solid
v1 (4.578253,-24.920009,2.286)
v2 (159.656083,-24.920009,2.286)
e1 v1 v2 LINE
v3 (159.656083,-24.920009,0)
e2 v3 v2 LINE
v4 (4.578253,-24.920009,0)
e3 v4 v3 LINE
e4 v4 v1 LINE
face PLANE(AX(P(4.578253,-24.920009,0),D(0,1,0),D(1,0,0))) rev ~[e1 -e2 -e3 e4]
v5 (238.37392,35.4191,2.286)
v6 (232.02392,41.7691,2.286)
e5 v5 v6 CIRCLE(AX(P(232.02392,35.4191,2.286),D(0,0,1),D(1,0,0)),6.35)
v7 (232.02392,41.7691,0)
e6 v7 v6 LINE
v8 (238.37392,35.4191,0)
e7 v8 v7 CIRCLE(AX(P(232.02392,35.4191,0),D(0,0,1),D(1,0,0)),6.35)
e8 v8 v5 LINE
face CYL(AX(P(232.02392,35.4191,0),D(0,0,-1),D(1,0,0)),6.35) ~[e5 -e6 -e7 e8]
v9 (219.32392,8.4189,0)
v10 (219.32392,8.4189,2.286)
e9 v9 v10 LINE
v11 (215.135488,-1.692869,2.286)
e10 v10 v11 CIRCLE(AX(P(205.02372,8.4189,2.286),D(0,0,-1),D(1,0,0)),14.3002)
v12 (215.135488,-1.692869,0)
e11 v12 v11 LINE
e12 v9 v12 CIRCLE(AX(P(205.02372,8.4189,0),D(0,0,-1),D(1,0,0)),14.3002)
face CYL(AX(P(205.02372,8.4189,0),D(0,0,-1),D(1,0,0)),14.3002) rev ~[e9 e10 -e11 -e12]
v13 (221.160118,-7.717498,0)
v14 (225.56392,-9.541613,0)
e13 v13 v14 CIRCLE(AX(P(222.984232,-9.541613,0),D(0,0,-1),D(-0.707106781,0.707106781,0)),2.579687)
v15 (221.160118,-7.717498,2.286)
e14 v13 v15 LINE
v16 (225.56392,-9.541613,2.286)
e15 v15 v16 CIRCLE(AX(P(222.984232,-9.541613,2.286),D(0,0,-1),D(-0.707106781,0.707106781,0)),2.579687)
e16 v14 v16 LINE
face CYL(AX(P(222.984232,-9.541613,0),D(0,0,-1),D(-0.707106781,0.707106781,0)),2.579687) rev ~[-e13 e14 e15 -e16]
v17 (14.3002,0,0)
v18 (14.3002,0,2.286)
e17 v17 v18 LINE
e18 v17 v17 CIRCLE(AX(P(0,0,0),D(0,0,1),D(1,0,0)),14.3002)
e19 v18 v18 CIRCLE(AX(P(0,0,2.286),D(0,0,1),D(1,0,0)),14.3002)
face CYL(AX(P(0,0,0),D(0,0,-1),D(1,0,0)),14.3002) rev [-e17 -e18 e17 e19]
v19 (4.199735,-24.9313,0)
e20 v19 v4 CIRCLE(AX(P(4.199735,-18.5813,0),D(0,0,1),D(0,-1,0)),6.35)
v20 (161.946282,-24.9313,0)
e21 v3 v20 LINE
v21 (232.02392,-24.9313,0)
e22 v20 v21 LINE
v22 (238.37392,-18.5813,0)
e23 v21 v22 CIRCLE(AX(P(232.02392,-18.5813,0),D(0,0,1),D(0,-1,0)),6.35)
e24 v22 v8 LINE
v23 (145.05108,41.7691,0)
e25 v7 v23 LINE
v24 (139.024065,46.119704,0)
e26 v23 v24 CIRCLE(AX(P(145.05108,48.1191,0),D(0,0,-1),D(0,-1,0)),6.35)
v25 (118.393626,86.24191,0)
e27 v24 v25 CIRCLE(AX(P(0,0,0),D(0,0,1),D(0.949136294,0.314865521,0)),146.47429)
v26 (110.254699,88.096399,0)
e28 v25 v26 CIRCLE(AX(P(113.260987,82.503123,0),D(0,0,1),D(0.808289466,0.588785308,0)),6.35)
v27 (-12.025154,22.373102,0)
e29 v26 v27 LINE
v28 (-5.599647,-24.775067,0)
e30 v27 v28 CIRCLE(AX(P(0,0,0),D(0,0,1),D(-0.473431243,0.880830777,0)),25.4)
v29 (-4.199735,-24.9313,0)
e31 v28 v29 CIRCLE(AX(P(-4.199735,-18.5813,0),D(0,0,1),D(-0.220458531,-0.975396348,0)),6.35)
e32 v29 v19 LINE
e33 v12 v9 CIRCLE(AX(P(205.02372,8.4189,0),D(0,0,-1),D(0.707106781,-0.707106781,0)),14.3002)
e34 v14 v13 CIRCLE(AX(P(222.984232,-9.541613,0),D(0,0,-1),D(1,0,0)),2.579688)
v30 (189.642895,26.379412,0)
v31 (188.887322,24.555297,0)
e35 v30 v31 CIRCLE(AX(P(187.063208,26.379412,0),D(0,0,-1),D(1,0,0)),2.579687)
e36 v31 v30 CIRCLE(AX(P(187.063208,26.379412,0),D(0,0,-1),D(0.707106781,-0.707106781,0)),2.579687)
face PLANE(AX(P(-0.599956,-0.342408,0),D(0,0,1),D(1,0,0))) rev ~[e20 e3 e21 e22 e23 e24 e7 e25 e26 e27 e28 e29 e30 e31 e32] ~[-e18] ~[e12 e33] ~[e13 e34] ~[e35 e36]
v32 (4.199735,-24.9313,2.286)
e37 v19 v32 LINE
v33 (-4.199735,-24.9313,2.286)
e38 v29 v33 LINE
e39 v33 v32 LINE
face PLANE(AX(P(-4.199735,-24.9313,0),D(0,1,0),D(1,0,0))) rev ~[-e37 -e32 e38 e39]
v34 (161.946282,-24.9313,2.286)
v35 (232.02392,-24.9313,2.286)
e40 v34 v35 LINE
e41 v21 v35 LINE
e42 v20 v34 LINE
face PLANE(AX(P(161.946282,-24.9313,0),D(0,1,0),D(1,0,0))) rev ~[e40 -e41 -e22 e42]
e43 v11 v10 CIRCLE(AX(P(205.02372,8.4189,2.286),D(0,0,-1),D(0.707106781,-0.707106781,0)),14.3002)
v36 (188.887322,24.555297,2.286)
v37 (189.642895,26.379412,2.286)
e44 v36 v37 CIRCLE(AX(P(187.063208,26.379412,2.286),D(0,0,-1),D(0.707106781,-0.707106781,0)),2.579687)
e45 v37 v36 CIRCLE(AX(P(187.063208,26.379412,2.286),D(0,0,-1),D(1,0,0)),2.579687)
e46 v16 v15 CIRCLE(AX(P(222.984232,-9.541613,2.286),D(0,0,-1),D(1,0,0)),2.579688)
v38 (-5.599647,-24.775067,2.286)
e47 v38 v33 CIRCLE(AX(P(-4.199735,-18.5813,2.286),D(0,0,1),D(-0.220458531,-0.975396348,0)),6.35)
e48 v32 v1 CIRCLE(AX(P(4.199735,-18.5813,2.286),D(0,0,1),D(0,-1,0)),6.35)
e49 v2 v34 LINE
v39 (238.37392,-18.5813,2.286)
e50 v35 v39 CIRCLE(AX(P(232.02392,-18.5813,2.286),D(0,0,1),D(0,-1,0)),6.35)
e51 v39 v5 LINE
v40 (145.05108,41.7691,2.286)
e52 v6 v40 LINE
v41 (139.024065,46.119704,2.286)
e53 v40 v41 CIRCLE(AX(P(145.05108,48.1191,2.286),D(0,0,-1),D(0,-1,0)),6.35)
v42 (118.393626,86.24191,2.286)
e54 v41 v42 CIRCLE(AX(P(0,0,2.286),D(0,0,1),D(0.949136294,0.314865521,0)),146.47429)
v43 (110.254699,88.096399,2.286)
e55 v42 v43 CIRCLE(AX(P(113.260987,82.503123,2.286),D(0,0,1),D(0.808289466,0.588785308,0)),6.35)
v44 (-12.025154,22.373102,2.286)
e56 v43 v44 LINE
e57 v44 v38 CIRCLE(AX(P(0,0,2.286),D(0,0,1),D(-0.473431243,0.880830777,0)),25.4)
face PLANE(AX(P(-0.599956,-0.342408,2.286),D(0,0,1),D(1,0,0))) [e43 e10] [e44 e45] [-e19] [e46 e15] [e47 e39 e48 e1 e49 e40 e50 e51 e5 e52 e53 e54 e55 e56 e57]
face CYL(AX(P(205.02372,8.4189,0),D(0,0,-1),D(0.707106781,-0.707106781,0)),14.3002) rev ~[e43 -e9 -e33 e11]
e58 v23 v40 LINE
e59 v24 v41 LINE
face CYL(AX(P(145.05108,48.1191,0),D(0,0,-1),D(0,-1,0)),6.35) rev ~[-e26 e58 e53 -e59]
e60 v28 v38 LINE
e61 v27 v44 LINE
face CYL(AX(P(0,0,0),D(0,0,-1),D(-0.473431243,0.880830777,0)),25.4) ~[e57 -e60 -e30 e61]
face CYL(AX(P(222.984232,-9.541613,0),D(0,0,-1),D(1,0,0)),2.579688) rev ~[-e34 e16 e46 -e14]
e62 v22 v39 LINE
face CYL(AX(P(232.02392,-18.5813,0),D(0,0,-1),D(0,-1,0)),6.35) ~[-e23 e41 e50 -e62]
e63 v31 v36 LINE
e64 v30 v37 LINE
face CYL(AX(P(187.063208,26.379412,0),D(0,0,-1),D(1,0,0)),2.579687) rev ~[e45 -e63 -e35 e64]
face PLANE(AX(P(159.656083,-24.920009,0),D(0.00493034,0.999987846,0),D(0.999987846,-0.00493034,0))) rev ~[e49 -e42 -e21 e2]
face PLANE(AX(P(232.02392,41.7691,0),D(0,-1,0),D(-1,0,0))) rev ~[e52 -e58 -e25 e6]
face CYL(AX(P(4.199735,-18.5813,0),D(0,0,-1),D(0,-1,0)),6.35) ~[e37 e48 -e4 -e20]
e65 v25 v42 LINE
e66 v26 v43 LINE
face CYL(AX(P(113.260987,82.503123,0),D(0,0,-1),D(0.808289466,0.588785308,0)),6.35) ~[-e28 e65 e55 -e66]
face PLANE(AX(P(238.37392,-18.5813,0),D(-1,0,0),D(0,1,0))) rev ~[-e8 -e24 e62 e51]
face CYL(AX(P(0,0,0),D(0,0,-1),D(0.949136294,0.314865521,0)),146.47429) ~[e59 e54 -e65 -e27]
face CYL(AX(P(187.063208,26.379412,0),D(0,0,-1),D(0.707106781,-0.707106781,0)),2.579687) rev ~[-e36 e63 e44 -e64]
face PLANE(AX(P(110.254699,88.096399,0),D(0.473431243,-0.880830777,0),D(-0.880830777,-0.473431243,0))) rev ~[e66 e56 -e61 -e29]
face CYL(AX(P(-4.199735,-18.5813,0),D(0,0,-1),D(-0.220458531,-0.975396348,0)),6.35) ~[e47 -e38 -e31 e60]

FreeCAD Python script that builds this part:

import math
import FreeCAD as App
import Part
import Sketcher
Q = App.Units.Quantity

doc = App.newDocument("Part")
body = doc.addObject("PartDesign::Body", "Body")

# Sketch on XY plane
sketch1 = body.newObject("Sketcher::SketchObject", "Sketch")
sketch1.AttachmentSupport = (doc.getObject("XY_Plane"), [""])
sketch1.MapMode = "FlatFace"
sketch1.addGeometry(Part.ArcOfCircle(Part.Circle(App.Vector(4.2, -18.58, 0), App.Vector(0, 0, 1), 6.35), math.radians(-90), math.radians(-86.58)), False)
sketch1.addGeometry(Part.LineSegment(App.Vector(4.58, -24.92, 0), App.Vector(159.66, -24.92, 0)), False)
sketch1.addGeometry(Part.LineSegment(App.Vector(159.66, -24.92, 0), App.Vector(161.95, -24.93, 0)), False)
sketch1.addGeometry(Part.LineSegment(App.Vector(161.95, -24.93, 0), App.Vector(232.02, -24.93, 0)), False)
sketch1.addGeometry(Part.ArcOfCircle(Part.Circle(App.Vector(232.02, -18.58, 0), App.Vector(0, 0, 1), 6.35), math.radians(-90), math.radians(0)), False)
sketch1.addGeometry(Part.LineSegment(App.Vector(238.37, -18.58, 0), App.Vector(238.37, 35.42, 0)), False)
sketch1.addGeometry(Part.ArcOfCircle(Part.Circle(App.Vector(232.02, 35.42, 0), App.Vector(0, 0, 1), 6.35), math.radians(0), math.radians(90)), False)
sketch1.addGeometry(Part.LineSegment(App.Vector(232.02, 41.77, 0), App.Vector(145.05, 41.77, 0)), False)
sketch1.addGeometry(Part.ArcOfCircle(Part.Circle(App.Vector(145.05, 48.12, 0), App.Vector(0, 0, 1), 6.35), math.radians(-162), math.radians(-90)), False)
sketch1.addGeometry(Part.ArcOfCircle(Part.Circle(App.Vector(0, 0, 0), App.Vector(0, 0, 1), 146.47), math.radians(18.35), math.radians(36.07)), False)
sketch1.addGeometry(Part.ArcOfCircle(Part.Circle(App.Vector(113.26, 82.5, 0), App.Vector(0, 0, 1), 6.35), math.radians(36), math.radians(118)), False)
sketch1.addGeometry(Part.LineSegment(App.Vector(110.25, 88.1, 0), App.Vector(-12.03, 22.37, 0)), False)
sketch1.addGeometry(Part.ArcOfCircle(Part.Circle(App.Vector(0, 0, 0), App.Vector(0, 0, 1), 25.4), math.radians(118), math.radians(257)), False)
sketch1.addGeometry(Part.ArcOfCircle(Part.Circle(App.Vector(-4.2, -18.58, 0), App.Vector(0, 0, 1), 6.35), math.radians(-102.74), math.radians(-90)), False)
sketch1.addGeometry(Part.LineSegment(App.Vector(-4.2, -24.93, 0), App.Vector(4.2, -24.93, 0)), False)
sketch1.addGeometry(Part.Circle(App.Vector(0, 0, 0), App.Vector(0, 0, 1), 14.3), False)
sketch1.addGeometry(Part.ArcOfCircle(Part.Circle(App.Vector(222.98, -9.54, 0), App.Vector(0, 0, 1), 2.58), math.radians(0), math.radians(135)), False)
sketch1.addGeometry(Part.ArcOfCircle(Part.Circle(App.Vector(222.98, -9.54, 0), App.Vector(0, 0, 1), 2.58), math.radians(135), math.radians(360)), False)
sketch1.addGeometry(Part.ArcOfCircle(Part.Circle(App.Vector(205.02, 8.42, 0), App.Vector(0, 0, 1), 14.3), math.radians(0), math.radians(315)), False)
sketch1.addGeometry(Part.ArcOfCircle(Part.Circle(App.Vector(205.02, 8.42, 0), App.Vector(0, 0, 1), 14.3), math.radians(-45), math.radians(0)), False)
sketch1.addGeometry(Part.ArcOfCircle(Part.Circle(App.Vector(187.06, 26.38, 0), App.Vector(0, 0, 1), 2.58), math.radians(0), math.radians(315)), False)
sketch1.addGeometry(Part.ArcOfCircle(Part.Circle(App.Vector(187.06, 26.38, 0), App.Vector(0, 0, 1), 2.58), math.radians(-45), math.radians(0)), False)
sketch1.addConstraint(Sketcher.Constraint("Coincident", 0, 2, 1, 1))
sketch1.addConstraint(Sketcher.Constraint("Coincident", 1, 2, 2, 1))
sketch1.addConstraint(Sketcher.Constraint("Coincident", 2, 2, 3, 1))
sketch1.addConstraint(Sketcher.Constraint("Tangent", 3, 2, 4, 1))
sketch1.addConstraint(Sketcher.Constraint("Tangent", 4, 2, 5, 1))
sketch1.addConstraint(Sketcher.Constraint("Tangent", 5, 2, 6, 1))
sketch1.addConstraint(Sketcher.Constraint("Tangent", 6, 2, 7, 1))
sketch1.addConstraint(Sketcher.Constraint("Tangent", 7, 2, 8, 2))
sketch1.addConstraint(Sketcher.Constraint("Tangent", 8, 1, 9, 1))
sketch1.addConstraint(Sketcher.Constraint("Tangent", 9, 2, 10, 1))
sketch1.addConstraint(Sketcher.Constraint("Tangent", 10, 2, 11, 1))
sketch1.addConstraint(Sketcher.Constraint("Tangent", 11, 2, 12, 1))
sketch1.addConstraint(Sketcher.Constraint("Tangent", 12, 2, 13, 1))
sketch1.addConstraint(Sketcher.Constraint("Tangent", 13, 2, 14, 1))
sketch1.addConstraint(Sketcher.Constraint("Tangent", 14, 2, 0, 1))
sketch1.addConstraint(Sketcher.Constraint("Tangent", 16, 1, 17, 2))
sketch1.addConstraint(Sketcher.Constraint("Coincident", 17, 1, 16, 2))
sketch1.addConstraint(Sketcher.Constraint("Tangent", 18, 1, 19, 2))
sketch1.addConstraint(Sketcher.Constraint("Coincident", 19, 1, 18, 2))
sketch1.addConstraint(Sketcher.Constraint("Tangent", 20, 1, 21, 2))
sketch1.addConstraint(Sketcher.Constraint("Coincident", 21, 1, 20, 2))
sketch1.addConstraint(Sketcher.Constraint("Horizontal", 1))
sketch1.addConstraint(Sketcher.Constraint("Horizontal", 3))
sketch1.addConstraint(Sketcher.Constraint("Vertical", 5))
sketch1.addConstraint(Sketcher.Constraint("Horizontal", 7))
sketch1.addConstraint(Sketcher.Constraint("Horizontal", 14))
sketch1.addConstraint(Sketcher.Constraint("Coincident", 9, 3, -1, 1))
sketch1.addConstraint(Sketcher.Constraint("Coincident", 12, 3, -1, 1))
sketch1.addConstraint(Sketcher.Constraint("Coincident", 15, 3, -1, 1))
sketch1.addConstraint(Sketcher.Constraint("Equal", 0, 4))
sketch1.addConstraint(Sketcher.Constraint("Equal", 4, 6))
sketch1.addConstraint(Sketcher.Constraint("Equal", 6, 8))
sketch1.addConstraint(Sketcher.Constraint("Equal", 8, 10))
sketch1.addConstraint(Sketcher.Constraint("Equal", 10, 13))
sketch1.addConstraint(Sketcher.Constraint("Equal", 15, 18))
sketch1.addConstraint(Sketcher.Constraint("Equal", 17, 20))
sketch1.addConstraint(Sketcher.Constraint("Horizontal", 0, 3, 4, 3))
sketch1.addConstraint(Sketcher.Constraint("Horizontal", 17, 3, 16, 1))
sketch1.addConstraint(Sketcher.Constraint("Horizontal", 19, 3, 18, 1))
sketch1.addConstraint(Sketcher.Constraint("Horizontal", 21, 3, 20, 1))
sketch1.addConstraint(Sketcher.Constraint("Radius", 12, Q("1 in")))
sketch1.addConstraint(Sketcher.Constraint("Radius", 0, Q("0.25 in")))
sketch1.addConstraint(Sketcher.Constraint("Diameter", 15, Q("1.126 in")))
sketch1.addConstraint(Sketcher.Constraint("DistanceY", 5, 1, 5, 2, Q("2.126 in")))
sketch1.addConstraint(Sketcher.Constraint("Radius", 9, 146.47429))
sketch1.addConstraint(Sketcher.Constraint("DistanceX", 18, 3, 4, 3, Q("1.063 in")))
sketch1.addConstraint(Sketcher.Constraint("DistanceY", 4, 3, 18, 3, Q("1.063 in")))
sketch1.addConstraint(Sketcher.Constraint("DistanceX", 7, 2, 1, 2, Q("0.5750001 in")))
sketch1.addConstraint(Sketcher.Constraint("DistanceX", -1, 1, 4, 3, Q("9.1348 in")))
sketch1.addConstraint(Sketcher.Constraint("Radius", 16, 2.579687))
sketch1.addConstraint(Sketcher.Constraint("DistanceX", 1, 1, 1, 2, 155.077831))
sketch1.addConstraint(Sketcher.Constraint("DistanceX", 3, 1, 3, 2, 70.077638))
sketch1.addConstraint(Sketcher.Constraint("DistanceX", 7, 2, 7, 1, 86.97284))
sketch1.addConstraint(Sketcher.Constraint("DistanceX", 14, 1, 14, 2, 8.39947))
sketch1.addConstraint(Sketcher.Constraint("DistanceX", -1, 1, 10, 2, 110.254699))
sketch1.addConstraint(Sketcher.Constraint("DistanceY", 17, 1, -1, 1, 7.717498))
sketch1.addConstraint(Sketcher.Constraint("DistanceY", 20, 3, 9, 2, 59.862498))
sketch1.addConstraint(Sketcher.Constraint("DistanceX", 16, 1, 4, 3, 6.46))
sketch1.addConstraint(Sketcher.Constraint("DistanceX", -1, 1, 19, 1, 215.135488))
sketch1.addConstraint(Sketcher.Constraint("DistanceX", 19, 1, 17, 1, 6.024629))
sketch1.addConstraint(Sketcher.Constraint("DistanceX", -1, 1, 20, 3, 187.063208))
sketch1.addConstraint(Sketcher.Constraint("DistanceX", -1, 1, 21, 1, 188.887322))
pad1 = body.newObject("PartDesign::Pad", "Pad")
pad1.Profile = sketch1
pad1.Length = Q("0.09 in")

doc.recompute()
